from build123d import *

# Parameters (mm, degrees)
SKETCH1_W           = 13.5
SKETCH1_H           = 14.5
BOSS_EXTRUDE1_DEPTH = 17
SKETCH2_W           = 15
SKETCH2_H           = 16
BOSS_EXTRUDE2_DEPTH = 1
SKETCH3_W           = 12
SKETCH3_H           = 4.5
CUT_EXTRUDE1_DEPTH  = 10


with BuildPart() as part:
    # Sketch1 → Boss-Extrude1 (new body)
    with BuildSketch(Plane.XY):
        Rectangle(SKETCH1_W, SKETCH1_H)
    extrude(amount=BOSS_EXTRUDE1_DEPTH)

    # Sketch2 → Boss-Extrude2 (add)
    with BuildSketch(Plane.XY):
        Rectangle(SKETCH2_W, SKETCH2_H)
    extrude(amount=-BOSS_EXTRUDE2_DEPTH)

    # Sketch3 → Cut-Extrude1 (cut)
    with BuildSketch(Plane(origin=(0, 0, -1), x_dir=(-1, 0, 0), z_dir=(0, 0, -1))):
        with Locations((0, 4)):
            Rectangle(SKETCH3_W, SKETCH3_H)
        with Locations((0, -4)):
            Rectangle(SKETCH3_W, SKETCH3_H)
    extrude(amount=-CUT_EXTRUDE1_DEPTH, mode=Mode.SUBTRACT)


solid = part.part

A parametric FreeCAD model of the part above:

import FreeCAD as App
import Part
import Sketcher


def add_polygon(sketch, points):
    """Adds a closed chain of lines whose ends are joined by coincident constraints."""
    first, n = sketch.GeometryCount, len(points)
    for a, b in zip(points, points[1:] + points[:1]):
        sketch.addGeometry(Part.LineSegment(App.Vector(*a, 0), App.Vector(*b, 0)), False)
    for i in range(n):
        sketch.addConstraint(Sketcher.Constraint("Coincident", first + i, 2, first + (i + 1) % n, 1))

doc = App.newDocument("Part")
params = doc.addObject("Spreadsheet::Sheet", "Params")
for row, (alias, value) in enumerate([
    ("sketch1_width", "13.5 mm"),
    ("sketch1_height", "14.5 mm"),
    ("pad1_length", "17 mm"),
    ("sketch2_width", "15 mm"),
    ("sketch2_height", "16 mm"),
    ("pad2_length", "1 mm"),
    ("sketch3_width", "12 mm"),
    ("sketch3_height", "4.5 mm"),
    ("pocket1_length", "10 mm"),
], start=1):
    params.set(f"A{row}", alias)
    params.set(f"B{row}", "=" + value)
    params.setAlias(f"B{row}", alias)

body = doc.addObject("PartDesign::Body", "Body")

sketch1 = doc.addObject("Sketcher::SketchObject", "Sketch")
body.addObject(sketch1)
sketch1.AttachmentSupport = (doc.XY_Plane, [""])
sketch1.MapMode = "FlatFace"
add_polygon(sketch1, [(-7, 7), (-7, -7), (7, -7), (7, 7)])
sketch1.addConstraint([
    Sketcher.Constraint("Vertical", 0),
    Sketcher.Constraint("Horizontal", 1),
    Sketcher.Constraint("Vertical", 2),
    Sketcher.Constraint("Horizontal", 3),
    Sketcher.Constraint("Symmetric", 0, 2, 2, 2, -1, 1),
    Sketcher.Constraint("DistanceX", 1, 1, 1, 2, 13.5),
    Sketcher.Constraint("DistanceY", 0, 2, 0, 1, 14.5),
])
sketch1.setExpression("Constraints[9]", "Params.sketch1_width")
sketch1.setExpression("Constraints[10]", "Params.sketch1_height")
pad1 = doc.addObject("PartDesign::Pad", "Pad")
body.addObject(pad1)
pad1.Profile = sketch1
pad1.setExpression("Length", "Params.pad1_length")

sketch2 = doc.addObject("Sketcher::SketchObject", "Sketch001")
body.addObject(sketch2)
sketch2.AttachmentSupport = (doc.XY_Plane, [""])
sketch2.MapMode = "FlatFace"
add_polygon(sketch2, [(-8, 8), (-8, -8), (8, -8), (8, 8)])
sketch2.addConstraint([
    Sketcher.Constraint("Vertical", 0),
    Sketcher.Constraint("Horizontal", 1),
    Sketcher.Constraint("Vertical", 2),
    Sketcher.Constraint("Horizontal", 3),
    Sketcher.Constraint("Symmetric", 0, 2, 2, 2, -1, 1),
    Sketcher.Constraint("DistanceX", 1, 1, 1, 2, 15.0),
    Sketcher.Constraint("DistanceY", 0, 2, 0, 1, 16.0),
])
sketch2.setExpression("Constraints[9]", "Params.sketch2_width")
sketch2.setExpression("Constraints[10]", "Params.sketch2_height")
pad2 = doc.addObject("PartDesign::Pad", "Pad001")
body.addObject(pad2)
pad2.Profile = sketch2
pad2.setExpression("Length", "Params.pad2_length")
pad2.Reversed = True

sketch3 = doc.addObject("Sketcher::SketchObject", "Sketch002")
body.addObject(sketch3)
sketch3.AttachmentSupport = (doc.XY_Plane, [""])
sketch3.MapMode = "FlatFace"
sketch3.AttachmentOffset = App.Placement(App.Vector(0, 0, -1), App.Rotation())
add_polygon(sketch3, [(6, 6.2), (6, 1.8), (-6, 1.8), (-6, 6.2)])
add_polygon(sketch3, [(6, -1.8), (6, -6.2), (-6, -6.2), (-6, -1.8)])
sketch3.addConstraint([
    Sketcher.Constraint("Vertical", 0),
    Sketcher.Constraint("Horizontal", 1),
    Sketcher.Constraint("Vertical", 2),
    Sketcher.Constraint("Horizontal", 3),
    Sketcher.Constraint("Vertical", 4),
    Sketcher.Constraint("Horizontal", 5),
    Sketcher.Constraint("Vertical", 6),
    Sketcher.Constraint("Horizontal", 7),
    Sketcher.Constraint("Symmetric", 2, 2, 4, 2, -1, 1),
    Sketcher.Constraint("Symmetric", 0, 2, 6, 2, -1, 1),
    Sketcher.Constraint("Vertical", 3, 2, 4, 2),
    Sketcher.Constraint("DistanceX", 1, 2, 1, 1, 12.0),
    Sketcher.Constraint("DistanceY", 0, 2, 0, 1, 4.5),
    Sketcher.Constraint("DistanceY", 4, 2, 0, 2, 8.0),
])
sketch3.setExpression("Constraints[19]", "Params.sketch3_width")
sketch3.setExpression("Constraints[20]", "Params.sketch3_height")
pocket1 = doc.addObject("PartDesign::Pocket", "Pocket")
body.addObject(pocket1)
pocket1.Profile = sketch3
pocket1.setExpression("Length", "Params.pocket1_length")
pocket1.Reversed = True

doc.recompute()
